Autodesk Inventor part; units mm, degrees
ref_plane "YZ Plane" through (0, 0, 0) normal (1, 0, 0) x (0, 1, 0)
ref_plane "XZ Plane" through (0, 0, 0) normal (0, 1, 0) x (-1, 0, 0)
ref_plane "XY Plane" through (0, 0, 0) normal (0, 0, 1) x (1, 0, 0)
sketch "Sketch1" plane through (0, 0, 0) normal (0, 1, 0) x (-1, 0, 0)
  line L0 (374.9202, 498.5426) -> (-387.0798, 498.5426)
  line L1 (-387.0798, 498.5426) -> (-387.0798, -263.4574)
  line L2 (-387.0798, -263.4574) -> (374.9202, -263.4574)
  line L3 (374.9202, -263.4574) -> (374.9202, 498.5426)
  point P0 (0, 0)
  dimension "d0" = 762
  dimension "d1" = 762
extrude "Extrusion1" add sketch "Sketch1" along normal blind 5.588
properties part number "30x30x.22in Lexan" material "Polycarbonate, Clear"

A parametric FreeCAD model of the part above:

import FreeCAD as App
import Part
import Sketcher
Q = App.Units.Quantity


def add_polygon(sketch, points):
    """Adds a closed chain of lines whose ends are joined by coincident constraints."""
    first, n = sketch.GeometryCount, len(points)
    for a, b in zip(points, points[1:] + points[:1]):
        sketch.addGeometry(Part.LineSegment(App.Vector(*a, 0), App.Vector(*b, 0)), False)
    for i in range(n):
        sketch.addConstraint(Sketcher.Constraint("Coincident", first + i, 2, first + (i + 1) % n, 1))

doc = App.newDocument("Part")
body = doc.addObject("PartDesign::Body", "Body")

# Sketch on XZ plane
sketch1 = body.newObject("Sketcher::SketchObject", "Sketch")
sketch1.AttachmentSupport = (doc.getObject("XZ_Plane"), [""])
sketch1.MapMode = "FlatFace"
add_polygon(sketch1, [(-375, -263), (-375, 499), (387, 499), (387, -263)])  # lines 0-3
sketch1.addConstraint(Sketcher.Constraint("Vertical", 0))
sketch1.addConstraint(Sketcher.Constraint("Horizontal", 1))
sketch1.addConstraint(Sketcher.Constraint("Vertical", 2))
sketch1.addConstraint(Sketcher.Constraint("Horizontal", 3))
sketch1.addConstraint(Sketcher.Constraint("Equal", 3, 0))
sketch1.addConstraint(Sketcher.Constraint("DistanceX", 1, 1, 1, 2, Q("30 in")))
sketch1.addConstraint(Sketcher.Constraint("DistanceX", 0, 2, -1, 1, 374.9202))
sketch1.addConstraint(Sketcher.Constraint("DistanceY", -1, 1, 0, 2, 498.5426))
pad1 = body.newObject("PartDesign::Pad", "Pad")
pad1.Profile = sketch1
pad1.Length = Q("0.22 in")
pad1.Reversed = True

doc.recompute()
